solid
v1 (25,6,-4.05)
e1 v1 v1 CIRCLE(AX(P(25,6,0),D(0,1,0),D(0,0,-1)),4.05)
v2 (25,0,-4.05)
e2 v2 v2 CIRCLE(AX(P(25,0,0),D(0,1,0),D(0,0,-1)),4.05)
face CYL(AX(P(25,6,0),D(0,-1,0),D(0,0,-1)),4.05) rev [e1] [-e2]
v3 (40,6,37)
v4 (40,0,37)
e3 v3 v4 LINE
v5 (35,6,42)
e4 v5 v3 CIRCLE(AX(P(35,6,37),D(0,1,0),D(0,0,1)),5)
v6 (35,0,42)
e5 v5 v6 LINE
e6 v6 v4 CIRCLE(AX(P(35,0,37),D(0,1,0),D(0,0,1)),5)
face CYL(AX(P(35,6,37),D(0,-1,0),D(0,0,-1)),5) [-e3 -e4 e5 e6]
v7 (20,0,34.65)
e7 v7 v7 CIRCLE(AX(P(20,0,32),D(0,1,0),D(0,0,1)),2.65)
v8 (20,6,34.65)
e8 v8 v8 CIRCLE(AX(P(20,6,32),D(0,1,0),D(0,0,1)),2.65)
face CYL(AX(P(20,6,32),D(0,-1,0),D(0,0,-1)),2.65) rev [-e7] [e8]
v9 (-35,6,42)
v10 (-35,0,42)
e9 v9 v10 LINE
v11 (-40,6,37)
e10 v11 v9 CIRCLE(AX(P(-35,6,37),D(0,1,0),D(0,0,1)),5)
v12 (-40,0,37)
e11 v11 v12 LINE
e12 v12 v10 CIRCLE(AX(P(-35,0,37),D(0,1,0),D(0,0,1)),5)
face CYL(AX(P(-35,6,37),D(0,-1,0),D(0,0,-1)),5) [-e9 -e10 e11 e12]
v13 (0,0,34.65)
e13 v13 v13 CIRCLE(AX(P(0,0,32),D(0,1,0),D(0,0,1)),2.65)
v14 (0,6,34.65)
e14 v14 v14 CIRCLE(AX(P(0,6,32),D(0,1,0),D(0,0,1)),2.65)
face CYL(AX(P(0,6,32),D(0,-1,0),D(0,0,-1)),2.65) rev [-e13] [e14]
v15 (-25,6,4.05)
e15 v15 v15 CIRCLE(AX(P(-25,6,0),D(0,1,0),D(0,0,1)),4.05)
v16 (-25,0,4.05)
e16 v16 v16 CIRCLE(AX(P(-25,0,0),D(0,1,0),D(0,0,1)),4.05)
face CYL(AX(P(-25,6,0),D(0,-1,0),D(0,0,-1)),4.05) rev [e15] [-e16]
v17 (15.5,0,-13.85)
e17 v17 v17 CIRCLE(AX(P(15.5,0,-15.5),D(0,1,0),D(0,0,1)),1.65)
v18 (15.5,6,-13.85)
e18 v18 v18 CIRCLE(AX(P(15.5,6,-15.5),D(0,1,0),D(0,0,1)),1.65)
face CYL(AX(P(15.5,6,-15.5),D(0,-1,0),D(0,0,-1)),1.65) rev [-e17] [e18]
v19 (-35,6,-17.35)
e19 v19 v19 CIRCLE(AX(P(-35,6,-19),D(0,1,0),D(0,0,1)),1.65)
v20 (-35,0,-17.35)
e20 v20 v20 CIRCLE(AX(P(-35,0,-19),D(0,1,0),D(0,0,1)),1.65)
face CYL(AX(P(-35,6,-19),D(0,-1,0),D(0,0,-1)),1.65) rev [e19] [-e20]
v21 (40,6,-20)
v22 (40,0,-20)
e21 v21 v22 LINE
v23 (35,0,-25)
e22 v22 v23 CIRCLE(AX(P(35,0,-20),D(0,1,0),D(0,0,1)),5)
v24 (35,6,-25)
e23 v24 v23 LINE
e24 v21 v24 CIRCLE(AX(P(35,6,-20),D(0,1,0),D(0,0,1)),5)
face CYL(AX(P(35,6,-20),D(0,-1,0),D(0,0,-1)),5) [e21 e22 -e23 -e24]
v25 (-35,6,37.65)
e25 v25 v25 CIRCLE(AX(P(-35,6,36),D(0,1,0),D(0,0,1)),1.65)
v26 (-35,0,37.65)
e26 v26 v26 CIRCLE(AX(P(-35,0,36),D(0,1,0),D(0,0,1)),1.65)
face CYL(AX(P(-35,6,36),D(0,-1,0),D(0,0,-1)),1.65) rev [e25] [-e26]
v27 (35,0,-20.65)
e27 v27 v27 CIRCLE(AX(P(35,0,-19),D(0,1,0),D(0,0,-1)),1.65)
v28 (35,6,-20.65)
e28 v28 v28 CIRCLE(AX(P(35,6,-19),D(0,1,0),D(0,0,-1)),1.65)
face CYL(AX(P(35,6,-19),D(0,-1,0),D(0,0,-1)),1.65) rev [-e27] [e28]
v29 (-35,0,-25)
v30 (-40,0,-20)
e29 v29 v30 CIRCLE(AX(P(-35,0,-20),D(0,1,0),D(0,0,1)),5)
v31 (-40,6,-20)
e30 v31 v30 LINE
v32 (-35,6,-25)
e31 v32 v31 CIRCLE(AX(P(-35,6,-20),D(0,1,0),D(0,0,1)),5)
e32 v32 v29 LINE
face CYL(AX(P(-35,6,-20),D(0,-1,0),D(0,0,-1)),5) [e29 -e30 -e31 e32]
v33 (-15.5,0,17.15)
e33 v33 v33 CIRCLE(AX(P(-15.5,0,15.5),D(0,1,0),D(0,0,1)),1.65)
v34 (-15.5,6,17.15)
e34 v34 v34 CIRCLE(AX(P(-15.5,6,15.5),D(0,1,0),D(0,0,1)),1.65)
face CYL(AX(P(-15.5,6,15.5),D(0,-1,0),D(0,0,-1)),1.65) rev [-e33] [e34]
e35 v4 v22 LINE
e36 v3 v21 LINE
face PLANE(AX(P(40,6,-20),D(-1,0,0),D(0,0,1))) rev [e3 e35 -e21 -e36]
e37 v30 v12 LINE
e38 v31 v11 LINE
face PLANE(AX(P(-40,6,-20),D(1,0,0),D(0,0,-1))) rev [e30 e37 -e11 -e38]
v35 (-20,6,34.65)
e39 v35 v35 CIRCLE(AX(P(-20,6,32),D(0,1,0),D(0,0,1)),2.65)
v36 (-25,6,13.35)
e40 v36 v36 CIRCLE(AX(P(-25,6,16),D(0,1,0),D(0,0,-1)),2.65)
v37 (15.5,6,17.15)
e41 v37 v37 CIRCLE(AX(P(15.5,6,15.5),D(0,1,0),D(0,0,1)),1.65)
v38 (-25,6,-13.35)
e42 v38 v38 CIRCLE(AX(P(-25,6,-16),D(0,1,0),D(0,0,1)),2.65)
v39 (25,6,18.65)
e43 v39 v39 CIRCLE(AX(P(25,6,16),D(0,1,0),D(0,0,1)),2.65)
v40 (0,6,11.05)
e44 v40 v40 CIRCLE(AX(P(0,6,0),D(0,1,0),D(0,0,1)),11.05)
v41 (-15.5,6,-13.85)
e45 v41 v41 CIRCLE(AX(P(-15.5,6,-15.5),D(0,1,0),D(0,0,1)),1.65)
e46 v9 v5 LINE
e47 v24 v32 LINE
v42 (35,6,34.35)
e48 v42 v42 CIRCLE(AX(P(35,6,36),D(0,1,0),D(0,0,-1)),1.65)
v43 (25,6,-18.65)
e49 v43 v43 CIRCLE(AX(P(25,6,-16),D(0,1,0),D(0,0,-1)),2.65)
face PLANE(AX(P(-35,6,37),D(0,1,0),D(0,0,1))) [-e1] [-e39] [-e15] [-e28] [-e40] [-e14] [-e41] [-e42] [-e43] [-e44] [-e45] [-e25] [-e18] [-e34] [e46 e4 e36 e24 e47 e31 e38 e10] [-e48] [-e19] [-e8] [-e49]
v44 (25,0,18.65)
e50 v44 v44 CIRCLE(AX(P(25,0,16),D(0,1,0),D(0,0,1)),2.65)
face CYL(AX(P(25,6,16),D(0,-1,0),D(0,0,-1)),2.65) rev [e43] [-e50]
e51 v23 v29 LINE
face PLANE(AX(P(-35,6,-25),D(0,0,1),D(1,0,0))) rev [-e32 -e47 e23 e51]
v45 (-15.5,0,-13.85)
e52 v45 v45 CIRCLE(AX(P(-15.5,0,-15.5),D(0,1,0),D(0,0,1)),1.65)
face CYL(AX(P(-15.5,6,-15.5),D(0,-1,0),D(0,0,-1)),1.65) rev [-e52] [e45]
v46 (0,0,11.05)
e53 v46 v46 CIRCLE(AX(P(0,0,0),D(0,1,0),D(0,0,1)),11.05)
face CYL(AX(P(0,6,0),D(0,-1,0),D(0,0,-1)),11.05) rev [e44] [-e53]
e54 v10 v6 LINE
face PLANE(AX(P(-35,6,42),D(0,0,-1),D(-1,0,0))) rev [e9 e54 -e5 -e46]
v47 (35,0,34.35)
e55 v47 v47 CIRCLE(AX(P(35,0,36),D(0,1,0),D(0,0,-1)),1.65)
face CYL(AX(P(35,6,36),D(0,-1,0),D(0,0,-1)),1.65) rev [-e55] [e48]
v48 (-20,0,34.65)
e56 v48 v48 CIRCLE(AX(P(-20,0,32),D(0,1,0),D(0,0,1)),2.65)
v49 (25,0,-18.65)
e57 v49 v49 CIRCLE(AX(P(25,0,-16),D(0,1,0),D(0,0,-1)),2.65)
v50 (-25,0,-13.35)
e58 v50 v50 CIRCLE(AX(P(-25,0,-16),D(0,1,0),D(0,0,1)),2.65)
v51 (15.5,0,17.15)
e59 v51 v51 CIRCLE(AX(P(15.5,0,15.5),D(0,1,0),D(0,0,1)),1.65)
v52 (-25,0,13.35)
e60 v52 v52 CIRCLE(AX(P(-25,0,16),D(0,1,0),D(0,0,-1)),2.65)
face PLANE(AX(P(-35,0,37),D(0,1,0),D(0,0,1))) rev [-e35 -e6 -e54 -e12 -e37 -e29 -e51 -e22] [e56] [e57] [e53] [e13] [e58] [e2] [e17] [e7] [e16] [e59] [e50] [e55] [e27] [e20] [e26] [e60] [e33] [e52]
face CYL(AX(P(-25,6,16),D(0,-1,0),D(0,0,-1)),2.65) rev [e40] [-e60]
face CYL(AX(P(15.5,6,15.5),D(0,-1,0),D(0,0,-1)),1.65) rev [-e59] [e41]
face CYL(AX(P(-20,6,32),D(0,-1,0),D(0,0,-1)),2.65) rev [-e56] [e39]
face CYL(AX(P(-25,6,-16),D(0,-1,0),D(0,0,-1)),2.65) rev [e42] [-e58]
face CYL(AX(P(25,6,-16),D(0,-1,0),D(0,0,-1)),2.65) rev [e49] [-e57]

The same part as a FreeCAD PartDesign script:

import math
import FreeCAD as App
import Part
import Sketcher
from FreeCAD import Vector

doc = App.newDocument("Part")
body = doc.addObject("PartDesign::Body", "Body")

sketch1 = doc.addObject("Sketcher::SketchObject", "Sketch")
body.addObject(sketch1)
sketch1.AttachmentSupport = (doc.XZ_Plane, [""])
sketch1.MapMode = "FlatFace"
sketch1.addGeometry([
    Part.LineSegment(Vector(-35, 42, 0), Vector(35, 42, 0)),
    Part.ArcOfCircle(Part.Circle(Vector(35, 37, 0), Vector(0, 0, 1), 5), math.radians(0), math.radians(90)),
    Part.LineSegment(Vector(40, 37, 0), Vector(40, -20, 0)),
    Part.ArcOfCircle(Part.Circle(Vector(35, -20, 0), Vector(0, 0, 1), 5), math.radians(-90), math.radians(0)),
    Part.LineSegment(Vector(35, -25, 0), Vector(-35, -25, 0)),
    Part.ArcOfCircle(Part.Circle(Vector(-35, -20, 0), Vector(0, 0, 1), 5), math.radians(180), math.radians(270)),
    Part.LineSegment(Vector(-40, -20, 0), Vector(-40, 37, 0)),
    Part.ArcOfCircle(Part.Circle(Vector(-35, 37, 0), Vector(0, 0, 1), 5), math.radians(90), math.radians(180)),
    Part.Circle(Vector(-35, 36, 0), Vector(0, 0, 1), 1.65),
    Part.Circle(Vector(-20, 32, 0), Vector(0, 0, 1), 2.65),
    Part.Circle(Vector(-25, 16, 0), Vector(0, 0, 1), 2.65),
    Part.Circle(Vector(-15.5, 15.5, 0), Vector(0, 0, 1), 1.65),
    Part.Circle(Vector(0, 32, 0), Vector(0, 0, 1), 2.65),
    Part.Circle(Vector(20, 32, 0), Vector(0, 0, 1), 2.65),
    Part.Circle(Vector(35, 36, 0), Vector(0, 0, 1), 1.65),
    Part.Circle(Vector(15.5, 15.5, 0), Vector(0, 0, 1), 1.65),
    Part.Circle(Vector(25, 16, 0), Vector(0, 0, 1), 2.65),
    Part.Circle(Vector(-25, 0, 0), Vector(0, 0, 1), 4.05),
    Part.Circle(Vector(-35, -19, 0), Vector(0, 0, 1), 1.65),
    Part.Circle(Vector(-25, -16, 0), Vector(0, 0, 1), 2.65),
    Part.Circle(Vector(-15.5, -15.5, 0), Vector(0, 0, 1), 1.65),
    Part.Circle(Vector(0, 0, 0), Vector(0, 0, 1), 11.05),
    Part.Circle(Vector(25, 0, 0), Vector(0, 0, 1), 4.05),
    Part.Circle(Vector(15.5, -15.5, 0), Vector(0, 0, 1), 1.65),
    Part.Circle(Vector(25, -16, 0), Vector(0, 0, 1), 2.65),
    Part.Circle(Vector(35, -19, 0), Vector(0, 0, 1), 1.65),
], False)
sketch1.addConstraint([
    Sketcher.Constraint("Tangent", 0, 2, 1, 2),
    Sketcher.Constraint("Tangent", 1, 1, 2, 1),
    Sketcher.Constraint("Tangent", 2, 2, 3, 2),
    Sketcher.Constraint("Tangent", 3, 1, 4, 1),
    Sketcher.Constraint("Tangent", 4, 2, 5, 2),
    Sketcher.Constraint("Tangent", 5, 1, 6, 1),
    Sketcher.Constraint("Tangent", 6, 2, 7, 2),
    Sketcher.Constraint("Tangent", 7, 1, 0, 1),
    Sketcher.Constraint("Horizontal", 0),
    Sketcher.Constraint("Vertical", 2),
    Sketcher.Constraint("Horizontal", 4),
    Sketcher.Constraint("Vertical", 6),
    Sketcher.Constraint("Coincident", 21, 3, -1, 1),
    Sketcher.Constraint("Equal", 1, 3),
    Sketcher.Constraint("Equal", 3, 5),
    Sketcher.Constraint("Equal", 5, 7),
    Sketcher.Constraint("Equal", 9, 10),
    Sketcher.Constraint("Equal", 8, 11),
    Sketcher.Constraint("Equal", 10, 12),
    Sketcher.Constraint("Equal", 12, 13),
    Sketcher.Constraint("Equal", 11, 14),
    Sketcher.Constraint("Equal", 14, 15),
    Sketcher.Constraint("Equal", 13, 16),
    Sketcher.Constraint("Equal", 15, 18),
    Sketcher.Constraint("Equal", 16, 19),
    Sketcher.Constraint("Equal", 18, 20),
    Sketcher.Constraint("Equal", 17, 22),
    Sketcher.Constraint("Equal", 20, 23),
    Sketcher.Constraint("Equal", 19, 24),
    Sketcher.Constraint("Equal", 23, 25),
    Sketcher.Constraint("Symmetric", 16, 3, 19, 3, -1, 1),
    Sketcher.Constraint("Symmetric", 15, 3, 20, 3, -1, 1),
    Sketcher.Constraint("Symmetric", 17, 3, 22, 3, -1, 1),
    Sketcher.Constraint("Symmetric", 11, 3, 23, 3, -1, 1),
    Sketcher.Constraint("Symmetric", 10, 3, 24, 3, -1, 1),
    Sketcher.Constraint("Symmetric", 9, 3, 13, 3, -2),
    Sketcher.Constraint("Symmetric", 8, 3, 14, 3, -2),
    Sketcher.Constraint("Symmetric", 11, 3, 15, 3, -2),
    Sketcher.Constraint("Symmetric", 10, 3, 16, 3, -2),
    Sketcher.Constraint("Symmetric", 18, 3, 25, 3, -2),
    Sketcher.Constraint("PointOnObject", 12, 3, -2),
    Sketcher.Constraint("PointOnObject", 17, 3, -1),
    Sketcher.Constraint("Horizontal", 9, 3, 12, 3),
    Sketcher.Constraint("Vertical", 7, 3, 8, 3),
    Sketcher.Constraint("Vertical", 3, 3, 14, 3),
    Sketcher.Constraint("Vertical", 10, 3, 17, 3),
    Sketcher.Constraint("Vertical", 8, 3, 18, 3),
    Sketcher.Constraint("Radius", 1, 5.0),
    Sketcher.Constraint("Diameter", 8, 3.3),
    Sketcher.Constraint("Diameter", 9, 5.3),
    Sketcher.Constraint("Diameter", 17, 8.1),
    Sketcher.Constraint("Diameter", 21, 22.1),
    Sketcher.Constraint("DistanceX", 0, 1, 0, 2, 70.0),
    Sketcher.Constraint("DistanceY", 2, 2, 2, 1, 57.0),
    Sketcher.Constraint("DistanceY", -1, 1, 1, 3, 37.0),
    Sketcher.Constraint("DistanceY", -1, 1, 8, 3, 36.0),
    Sketcher.Constraint("DistanceX", 9, 3, -1, 1, 20.0),
    Sketcher.Constraint("DistanceY", -1, 1, 9, 3, 32.0),
    Sketcher.Constraint("DistanceX", 10, 3, -1, 1, 25.0),
    Sketcher.Constraint("DistanceY", -1, 1, 10, 3, 16.0),
    Sketcher.Constraint("DistanceY", 18, 3, -1, 1, 19.0),
    Sketcher.Constraint("DistanceX", 11, 3, 15, 3, 31.0),
    Sketcher.Constraint("DistanceY", 20, 3, 11, 3, 31.0),
])
pad1 = doc.addObject("PartDesign::Pad", "Pad")
body.addObject(pad1)
pad1.Profile = sketch1
pad1.Length = 6
pad1.Reversed = True

doc.recompute()
